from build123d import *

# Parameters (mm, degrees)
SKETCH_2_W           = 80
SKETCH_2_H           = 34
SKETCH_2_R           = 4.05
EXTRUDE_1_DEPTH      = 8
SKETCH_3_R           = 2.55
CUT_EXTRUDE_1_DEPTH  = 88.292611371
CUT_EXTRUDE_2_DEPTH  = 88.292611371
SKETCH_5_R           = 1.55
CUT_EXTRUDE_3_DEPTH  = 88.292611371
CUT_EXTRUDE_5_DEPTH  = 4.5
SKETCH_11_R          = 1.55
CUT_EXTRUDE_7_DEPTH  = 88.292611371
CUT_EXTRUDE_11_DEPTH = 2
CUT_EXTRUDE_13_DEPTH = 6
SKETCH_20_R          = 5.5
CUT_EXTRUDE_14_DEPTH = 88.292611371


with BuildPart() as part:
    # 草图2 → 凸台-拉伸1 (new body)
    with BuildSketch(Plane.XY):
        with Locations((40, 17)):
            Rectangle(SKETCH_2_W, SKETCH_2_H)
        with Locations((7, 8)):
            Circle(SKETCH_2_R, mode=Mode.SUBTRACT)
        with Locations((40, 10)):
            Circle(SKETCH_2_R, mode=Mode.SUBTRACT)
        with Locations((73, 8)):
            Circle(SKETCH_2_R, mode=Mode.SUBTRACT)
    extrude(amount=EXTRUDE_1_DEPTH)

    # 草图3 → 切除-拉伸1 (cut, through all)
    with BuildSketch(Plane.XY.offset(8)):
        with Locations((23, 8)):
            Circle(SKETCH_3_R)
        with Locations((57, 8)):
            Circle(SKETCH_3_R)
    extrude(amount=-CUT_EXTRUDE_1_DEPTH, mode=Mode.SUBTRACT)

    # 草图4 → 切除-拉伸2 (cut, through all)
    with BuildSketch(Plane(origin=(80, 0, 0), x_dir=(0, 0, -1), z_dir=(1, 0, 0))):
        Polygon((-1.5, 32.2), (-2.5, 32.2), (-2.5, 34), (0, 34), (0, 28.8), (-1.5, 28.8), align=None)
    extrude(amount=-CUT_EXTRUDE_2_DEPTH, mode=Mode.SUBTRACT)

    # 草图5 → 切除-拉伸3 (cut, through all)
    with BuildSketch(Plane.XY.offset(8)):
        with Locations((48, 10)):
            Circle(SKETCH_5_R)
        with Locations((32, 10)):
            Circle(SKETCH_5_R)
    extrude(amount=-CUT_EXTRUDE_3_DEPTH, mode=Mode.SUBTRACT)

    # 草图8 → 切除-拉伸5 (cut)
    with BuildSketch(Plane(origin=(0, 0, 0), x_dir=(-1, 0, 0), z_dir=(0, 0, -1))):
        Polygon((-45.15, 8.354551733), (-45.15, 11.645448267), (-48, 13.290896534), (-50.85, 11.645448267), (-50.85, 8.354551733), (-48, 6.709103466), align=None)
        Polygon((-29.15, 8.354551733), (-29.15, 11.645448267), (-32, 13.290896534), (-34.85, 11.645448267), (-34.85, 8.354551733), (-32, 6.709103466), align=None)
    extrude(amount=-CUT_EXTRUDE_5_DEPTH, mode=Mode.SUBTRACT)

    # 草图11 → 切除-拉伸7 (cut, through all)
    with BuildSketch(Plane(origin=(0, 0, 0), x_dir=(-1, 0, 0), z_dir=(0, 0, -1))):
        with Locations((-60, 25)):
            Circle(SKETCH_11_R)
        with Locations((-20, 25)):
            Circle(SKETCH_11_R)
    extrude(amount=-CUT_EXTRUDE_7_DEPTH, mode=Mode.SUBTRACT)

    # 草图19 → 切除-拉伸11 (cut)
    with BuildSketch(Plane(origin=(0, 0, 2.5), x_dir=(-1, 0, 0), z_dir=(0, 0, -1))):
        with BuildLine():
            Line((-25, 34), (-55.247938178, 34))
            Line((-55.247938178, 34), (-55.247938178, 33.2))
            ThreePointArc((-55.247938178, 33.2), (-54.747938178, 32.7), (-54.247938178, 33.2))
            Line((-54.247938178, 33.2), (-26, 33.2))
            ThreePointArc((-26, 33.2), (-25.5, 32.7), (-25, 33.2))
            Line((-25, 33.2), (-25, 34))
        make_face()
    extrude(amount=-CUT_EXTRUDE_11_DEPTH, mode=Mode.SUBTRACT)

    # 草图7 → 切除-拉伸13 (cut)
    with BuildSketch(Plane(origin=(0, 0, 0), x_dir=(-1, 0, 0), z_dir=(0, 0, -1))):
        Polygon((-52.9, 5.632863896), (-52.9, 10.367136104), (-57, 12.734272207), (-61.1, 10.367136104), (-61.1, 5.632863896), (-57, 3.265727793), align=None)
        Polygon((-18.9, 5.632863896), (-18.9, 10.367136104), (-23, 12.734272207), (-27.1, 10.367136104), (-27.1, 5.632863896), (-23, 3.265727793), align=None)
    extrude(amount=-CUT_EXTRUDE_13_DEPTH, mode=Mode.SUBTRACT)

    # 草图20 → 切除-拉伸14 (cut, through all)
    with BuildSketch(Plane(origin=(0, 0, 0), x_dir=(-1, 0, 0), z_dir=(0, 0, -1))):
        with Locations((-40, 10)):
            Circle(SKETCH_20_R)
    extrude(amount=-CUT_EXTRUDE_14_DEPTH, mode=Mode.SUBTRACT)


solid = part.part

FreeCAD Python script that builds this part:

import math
import FreeCAD as App
import Part
import Sketcher
from FreeCAD import Vector
Q = App.Units.Quantity

doc = App.newDocument("Part")
body = doc.addObject("PartDesign::Body", "Body")

sketch1 = body.newObject("Sketcher::SketchObject", "Sketch")
sketch1.AttachmentSupport = (doc.getObject("XY_Plane"), [""])
sketch1.MapMode = "FlatFace"
sketch1.addGeometry(Part.LineSegment(Vector(0, 34, 0), Vector(0, 0, 0)), False)
sketch1.addGeometry(Part.LineSegment(Vector(0, 0, 0), Vector(80, 0, 0)), False)
sketch1.addGeometry(Part.LineSegment(Vector(80, 0, 0), Vector(80, 34, 0)), False)
sketch1.addGeometry(Part.LineSegment(Vector(80, 34, 0), Vector(0, 34, 0)), False)
sketch1.addGeometry(Part.Circle(Vector(7, 8, 0), Vector(0, 0, 1), 4.05), False)
sketch1.addGeometry(Part.Circle(Vector(73, 8, 0), Vector(0, 0, 1), 4.05), False)
sketch1.addGeometry(Part.Circle(Vector(40, 10, 0), Vector(0, 0, 1), 4.05), False)
sketch1.addConstraint(Sketcher.Constraint("Coincident", 0, 2, 1, 1))
sketch1.addConstraint(Sketcher.Constraint("Coincident", 1, 2, 2, 1))
sketch1.addConstraint(Sketcher.Constraint("Coincident", 2, 2, 3, 1))
sketch1.addConstraint(Sketcher.Constraint("Coincident", 3, 2, 0, 1))
sketch1.addConstraint(Sketcher.Constraint("Vertical", 0))
sketch1.addConstraint(Sketcher.Constraint("Horizontal", 1))
sketch1.addConstraint(Sketcher.Constraint("Vertical", 2))
sketch1.addConstraint(Sketcher.Constraint("Horizontal", 3))
sketch1.addConstraint(Sketcher.Constraint("Coincident", 0, 2, -1, 1))
sketch1.addConstraint(Sketcher.Constraint("Equal", 4, 5))
sketch1.addConstraint(Sketcher.Constraint("Equal", 5, 6))
sketch1.addConstraint(Sketcher.Constraint("Horizontal", 4, 3, 5, 3))
sketch1.addConstraint(Sketcher.Constraint("Diameter", 4, 8.1))
sketch1.addConstraint(Sketcher.Constraint("DistanceX", 1, 1, 1, 2, 80.0))
sketch1.addConstraint(Sketcher.Constraint("DistanceY", 0, 2, 0, 1, 34.0))
sketch1.addConstraint(Sketcher.Constraint("DistanceX", -1, 1, 4, 3, 7.0))
sketch1.addConstraint(Sketcher.Constraint("DistanceY", -1, 1, 4, 3, 8.0))
sketch1.addConstraint(Sketcher.Constraint("DistanceX", -1, 1, 5, 3, 73.0))
sketch1.addConstraint(Sketcher.Constraint("DistanceX", -1, 1, 6, 3, 40.0))
sketch1.addConstraint(Sketcher.Constraint("DistanceY", -1, 1, 6, 3, 10.0))
pad1 = body.newObject("PartDesign::Pad", "Pad")
pad1.Profile = sketch1
pad1.Length = 8

sketch2 = body.newObject("Sketcher::SketchObject", "Sketch001")
sketch2.AttachmentSupport = (doc.getObject("XY_Plane"), [""])
sketch2.MapMode = "FlatFace"
sketch2.AttachmentOffset = App.Placement(Vector(0, 0, 8), App.Rotation())
sketch2.addGeometry(Part.Circle(Vector(23, 8, 0), Vector(0, 0, 1), 2.55), False)
sketch2.addGeometry(Part.Circle(Vector(57, 8, 0), Vector(0, 0, 1), 2.55), False)
sketch2.addConstraint(Sketcher.Constraint("Equal", 0, 1))
sketch2.addConstraint(Sketcher.Constraint("Horizontal", 0, 3, 1, 3))
sketch2.addConstraint(Sketcher.Constraint("Diameter", 0, 5.1))
sketch2.addConstraint(Sketcher.Constraint("DistanceX", -1, 1, 0, 3, 23.0))
sketch2.addConstraint(Sketcher.Constraint("DistanceY", -1, 1, 0, 3, 8.0))
sketch2.addConstraint(Sketcher.Constraint("DistanceX", -1, 1, 1, 3, 57.0))
pocket1 = body.newObject("PartDesign::Pocket", "Pocket")
pocket1.Profile = sketch2
pocket1.Type = "ThroughAll"

sketch3 = body.newObject("Sketcher::SketchObject", "Sketch002")
sketch3.AttachmentSupport = (doc.getObject("YZ_Plane"), [""])
sketch3.MapMode = "FlatFace"
sketch3.AttachmentOffset = App.Placement(Vector(0, 0, 80), App.Rotation())
sketch3.addGeometry(Part.LineSegment(Vector(32.2, 2.5, 0), Vector(32.2, 1.5, 0)), False)
sketch3.addGeometry(Part.LineSegment(Vector(32.2, 1.5, 0), Vector(28.8, 1.5, 0)), False)
sketch3.addGeometry(Part.LineSegment(Vector(28.8, 1.5, 0), Vector(28.8, 0, 0)), False)
sketch3.addGeometry(Part.LineSegment(Vector(28.8, 0, 0), Vector(34, 0, 0)), False)
sketch3.addGeometry(Part.LineSegment(Vector(34, 0, 0), Vector(34, 2.5, 0)), False)
sketch3.addGeometry(Part.LineSegment(Vector(34, 2.5, 0), Vector(32.2, 2.5, 0)), False)
sketch3.addConstraint(Sketcher.Constraint("Coincident", 0, 2, 1, 1))
sketch3.addConstraint(Sketcher.Constraint("Coincident", 1, 2, 2, 1))
sketch3.addConstraint(Sketcher.Constraint("Coincident", 2, 2, 3, 1))
sketch3.addConstraint(Sketcher.Constraint("Coincident", 3, 2, 4, 1))
sketch3.addConstraint(Sketcher.Constraint("Coincident", 4, 2, 5, 1))
sketch3.addConstraint(Sketcher.Constraint("Coincident", 5, 2, 0, 1))
sketch3.addConstraint(Sketcher.Constraint("Vertical", 0))
sketch3.addConstraint(Sketcher.Constraint("Horizontal", 1))
sketch3.addConstraint(Sketcher.Constraint("Vertical", 2))
sketch3.addConstraint(Sketcher.Constraint("Horizontal", 3))
sketch3.addConstraint(Sketcher.Constraint("Vertical", 4))
sketch3.addConstraint(Sketcher.Constraint("Horizontal", 5))
sketch3.addConstraint(Sketcher.Constraint("PointOnObject", 2, 2, -1))
sketch3.addConstraint(Sketcher.Constraint("DistanceY", 0, 2, 0, 1, 1.0))
sketch3.addConstraint(Sketcher.Constraint("DistanceX", 1, 2, 1, 1, 3.4))
sketch3.addConstraint(Sketcher.Constraint("DistanceX", 3, 1, 3, 2, 5.2))
sketch3.addConstraint(Sketcher.Constraint("DistanceY", 2, 2, 2, 1, 1.5))
sketch3.addConstraint(Sketcher.Constraint("DistanceX", -1, 1, 3, 2, 34.0))
pocket2 = body.newObject("PartDesign::Pocket", "Pocket001")
pocket2.Profile = sketch3
pocket2.Type = "ThroughAll"

sketch4 = body.newObject("Sketcher::SketchObject", "Sketch003")
sketch4.AttachmentSupport = (doc.getObject("XY_Plane"), [""])
sketch4.MapMode = "FlatFace"
sketch4.AttachmentOffset = App.Placement(Vector(0, 0, 8), App.Rotation())
sketch4.addGeometry(Part.Circle(Vector(48, 10, 0), Vector(0, 0, 1), 1.55), False)
sketch4.addGeometry(Part.Circle(Vector(32, 10, 0), Vector(0, 0, 1), 1.55), False)
sketch4.addConstraint(Sketcher.Constraint("Equal", 0, 1))
sketch4.addConstraint(Sketcher.Constraint("Horizontal", 0, 3, 1, 3))
sketch4.addConstraint(Sketcher.Constraint("Diameter", 0, 3.1))
sketch4.addConstraint(Sketcher.Constraint("DistanceX", -1, 1, 0, 3, 48.0))
sketch4.addConstraint(Sketcher.Constraint("DistanceY", -1, 1, 0, 3, 10.0))
sketch4.addConstraint(Sketcher.Constraint("DistanceX", -1, 1, 1, 3, 32.0))
pocket3 = body.newObject("PartDesign::Pocket", "Pocket002")
pocket3.Profile = sketch4
pocket3.Type = "ThroughAll"

sketch5 = body.newObject("Sketcher::SketchObject", "Sketch004")
sketch5.AttachmentSupport = (doc.getObject("XY_Plane"), [""])
sketch5.MapMode = "FlatFace"
sketch5.addGeometry(Part.LineSegment(Vector(45.15, 8.354552, 0), Vector(45.15, 11.645448, 0)), False)
sketch5.addGeometry(Part.LineSegment(Vector(45.15, 11.645448, 0), Vector(48, 13.290897, 0)), False)
sketch5.addGeometry(Part.LineSegment(Vector(48, 13.290897, 0), Vector(50.85, 11.645448, 0)), False)
sketch5.addGeometry(Part.LineSegment(Vector(50.85, 11.645448, 0), Vector(50.85, 8.354552, 0)), False)
sketch5.addGeometry(Part.LineSegment(Vector(50.85, 8.354552, 0), Vector(48, 6.709103, 0)), False)
sketch5.addGeometry(Part.LineSegment(Vector(48, 6.709103, 0), Vector(45.15, 8.354552, 0)), False)
sketch5.addGeometry(Part.LineSegment(Vector(29.15, 8.354552, 0), Vector(29.15, 11.645448, 0)), False)
sketch5.addGeometry(Part.LineSegment(Vector(29.15, 11.645448, 0), Vector(32, 13.290897, 0)), False)
sketch5.addGeometry(Part.LineSegment(Vector(32, 13.290897, 0), Vector(34.85, 11.645448, 0)), False)
sketch5.addGeometry(Part.LineSegment(Vector(34.85, 11.645448, 0), Vector(34.85, 8.354552, 0)), False)
sketch5.addGeometry(Part.LineSegment(Vector(34.85, 8.354552, 0), Vector(32, 6.709103, 0)), False)
sketch5.addGeometry(Part.LineSegment(Vector(32, 6.709103, 0), Vector(29.15, 8.354552, 0)), False)
sketch5.addConstraint(Sketcher.Constraint("Coincident", 0, 2, 1, 1))
sketch5.addConstraint(Sketcher.Constraint("Coincident", 1, 2, 2, 1))
sketch5.addConstraint(Sketcher.Constraint("Coincident", 2, 2, 3, 1))
sketch5.addConstraint(Sketcher.Constraint("Coincident", 3, 2, 4, 1))
sketch5.addConstraint(Sketcher.Constraint("Coincident", 4, 2, 5, 1))
sketch5.addConstraint(Sketcher.Constraint("Coincident", 5, 2, 0, 1))
sketch5.addConstraint(Sketcher.Constraint("Coincident", 6, 2, 7, 1))
sketch5.addConstraint(Sketcher.Constraint("Coincident", 7, 2, 8, 1))
sketch5.addConstraint(Sketcher.Constraint("Coincident", 8, 2, 9, 1))
sketch5.addConstraint(Sketcher.Constraint("Coincident", 9, 2, 10, 1))
sketch5.addConstraint(Sketcher.Constraint("Coincident", 10, 2, 11, 1))
sketch5.addConstraint(Sketcher.Constraint("Coincident", 11, 2, 6, 1))
sketch5.addConstraint(Sketcher.Constraint("Vertical", 0))
sketch5.addConstraint(Sketcher.Constraint("Vertical", 3))
sketch5.addConstraint(Sketcher.Constraint("Vertical", 6))
sketch5.addConstraint(Sketcher.Constraint("Vertical", 9))
sketch5.addConstraint(Sketcher.Constraint("Parallel", 1, 4))
sketch5.addConstraint(Sketcher.Constraint("Parallel", 2, 5))
sketch5.addConstraint(Sketcher.Constraint("Parallel", 4, 7))
sketch5.addConstraint(Sketcher.Constraint("Parallel", 5, 8))
sketch5.addConstraint(Sketcher.Constraint("Parallel", 7, 10))
sketch5.addConstraint(Sketcher.Constraint("Parallel", 8, 11))
sketch5.addConstraint(Sketcher.Constraint("Horizontal", 0, 2, 2, 2))
sketch5.addConstraint(Sketcher.Constraint("Horizontal", 3, 2, 5, 2))
sketch5.addConstraint(Sketcher.Constraint("Horizontal", 2, 2, 6, 2))
sketch5.addConstraint(Sketcher.Constraint("Horizontal", 1, 2, 7, 2))
sketch5.addConstraint(Sketcher.Constraint("Horizontal", 6, 2, 8, 2))
sketch5.addConstraint(Sketcher.Constraint("Horizontal", 5, 2, 9, 2))
sketch5.addConstraint(Sketcher.Constraint("Horizontal", 4, 2, 10, 2))
sketch5.addConstraint(Sketcher.Constraint("Vertical", 1, 2, 4, 2))
sketch5.addConstraint(Sketcher.Constraint("Angle", 1, Q("30 deg")))
sketch5.addConstraint(Sketcher.Constraint("DistanceX", -1, 1, 1, 2, 48.0))
sketch5.addConstraint(Sketcher.Constraint("DistanceX", -1, 1, 7, 2, 32.0))
sketch5.addConstraint(Sketcher.Constraint("DistanceX", 0, 2, 2, 2, 5.7))
sketch5.addConstraint(Sketcher.Constraint("DistanceY", 0, 1, 0, 2, 3.290897))
sketch5.addConstraint(Sketcher.Constraint("DistanceY", -1, 1, 0, 2, 11.645448))
pocket4 = body.newObject("PartDesign::Pocket", "Pocket003")
pocket4.Profile = sketch5
pocket4.Length = 4.5
pocket4.Reversed = True

sketch6 = body.newObject("Sketcher::SketchObject", "Sketch005")
sketch6.AttachmentSupport = (doc.getObject("XY_Plane"), [""])
sketch6.MapMode = "FlatFace"
sketch6.addGeometry(Part.Circle(Vector(60, 25, 0), Vector(0, 0, 1), 1.55), False)
sketch6.addGeometry(Part.Circle(Vector(20, 25, 0), Vector(0, 0, 1), 1.55), False)
sketch6.addConstraint(Sketcher.Constraint("Equal", 0, 1))
sketch6.addConstraint(Sketcher.Constraint("Horizontal", 0, 3, 1, 3))
sketch6.addConstraint(Sketcher.Constraint("Diameter", 0, 3.1))
sketch6.addConstraint(Sketcher.Constraint("DistanceX", -1, 1, 0, 3, 60.0))
sketch6.addConstraint(Sketcher.Constraint("DistanceY", -1, 1, 0, 3, 25.0))
sketch6.addConstraint(Sketcher.Constraint("DistanceX", -1, 1, 1, 3, 20.0))
pocket5 = body.newObject("PartDesign::Pocket", "Pocket004")
pocket5.Profile = sketch6
pocket5.Type = "ThroughAll"
pocket5.Reversed = True

sketch7 = body.newObject("Sketcher::SketchObject", "Sketch006")
sketch7.AttachmentSupport = (doc.getObject("XY_Plane"), [""])
sketch7.MapMode = "FlatFace"
sketch7.AttachmentOffset = App.Placement(Vector(0, 0, 2.5), App.Rotation())
sketch7.addGeometry(Part.LineSegment(Vector(25, 34, 0), Vector(55.247938, 34, 0)), False)
sketch7.addGeometry(Part.LineSegment(Vector(55.247938, 34, 0), Vector(55.247938, 33.2, 0)), False)
sketch7.addGeometry(Part.ArcOfCircle(Part.Circle(Vector(54.747938, 33.2, 0), Vector(0, 0, 1), 0.5), math.radians(180), math.radians(360)), False)
sketch7.addGeometry(Part.LineSegment(Vector(54.247938, 33.2, 0), Vector(26, 33.2, 0)), False)
sketch7.addGeometry(Part.ArcOfCircle(Part.Circle(Vector(25.5, 33.2, 0), Vector(0, 0, 1), 0.5), math.radians(180), math.radians(360)), False)
sketch7.addGeometry(Part.LineSegment(Vector(25, 33.2, 0), Vector(25, 34, 0)), False)
sketch7.addConstraint(Sketcher.Constraint("Coincident", 0, 2, 1, 1))
sketch7.addConstraint(Sketcher.Constraint("Tangent", 1, 2, 2, 2))
sketch7.addConstraint(Sketcher.Constraint("Coincident", 2, 1, 3, 1))
sketch7.addConstraint(Sketcher.Constraint("Coincident", 3, 2, 4, 2))
sketch7.addConstraint(Sketcher.Constraint("Tangent", 4, 1, 5, 1))
sketch7.addConstraint(Sketcher.Constraint("Coincident", 5, 2, 0, 1))
sketch7.addConstraint(Sketcher.Constraint("Horizontal", 0))
sketch7.addConstraint(Sketcher.Constraint("Vertical", 1))
sketch7.addConstraint(Sketcher.Constraint("Horizontal", 3))
sketch7.addConstraint(Sketcher.Constraint("Vertical", 5))
sketch7.addConstraint(Sketcher.Constraint("Equal", 2, 4))
sketch7.addConstraint(Sketcher.Constraint("Horizontal", 2, 3, 4, 3))
sketch7.addConstraint(Sketcher.Constraint("Horizontal", 1, 2, 2, 1))
sketch7.addConstraint(Sketcher.Constraint("Radius", 2, 0.5))
sketch7.addConstraint(Sketcher.Constraint("DistanceY", 1, 2, 1, 1, 0.8))
sketch7.addConstraint(Sketcher.Constraint("DistanceY", -1, 1, 0, 2, 34.0))
sketch7.addConstraint(Sketcher.Constraint("DistanceX", -1, 1, 3, 2, 26.0))
sketch7.addConstraint(Sketcher.Constraint("DistanceX", 0, 1, 0, 2, 30.247938))
pocket6 = body.newObject("PartDesign::Pocket", "Pocket005")
pocket6.Profile = sketch7
pocket6.Length = 2
pocket6.Reversed = True

sketch8 = body.newObject("Sketcher::SketchObject", "Sketch007")
sketch8.AttachmentSupport = (doc.getObject("XY_Plane"), [""])
sketch8.MapMode = "FlatFace"
sketch8.addGeometry(Part.LineSegment(Vector(52.9, 5.632864, 0), Vector(52.9, 10.367136, 0)), False)
sketch8.addGeometry(Part.LineSegment(Vector(52.9, 10.367136, 0), Vector(57, 12.734272, 0)), False)
sketch8.addGeometry(Part.LineSegment(Vector(57, 12.734272, 0), Vector(61.1, 10.367136, 0)), False)
sketch8.addGeometry(Part.LineSegment(Vector(61.1, 10.367136, 0), Vector(61.1, 5.632864, 0)), False)
sketch8.addGeometry(Part.LineSegment(Vector(61.1, 5.632864, 0), Vector(57, 3.265728, 0)), False)
sketch8.addGeometry(Part.LineSegment(Vector(57, 3.265728, 0), Vector(52.9, 5.632864, 0)), False)
sketch8.addGeometry(Part.LineSegment(Vector(18.9, 5.632864, 0), Vector(18.9, 10.367136, 0)), False)
sketch8.addGeometry(Part.LineSegment(Vector(18.9, 10.367136, 0), Vector(23, 12.734272, 0)), False)
sketch8.addGeometry(Part.LineSegment(Vector(23, 12.734272, 0), Vector(27.1, 10.367136, 0)), False)
sketch8.addGeometry(Part.LineSegment(Vector(27.1, 10.367136, 0), Vector(27.1, 5.632864, 0)), False)
sketch8.addGeometry(Part.LineSegment(Vector(27.1, 5.632864, 0), Vector(23, 3.265728, 0)), False)
sketch8.addGeometry(Part.LineSegment(Vector(23, 3.265728, 0), Vector(18.9, 5.632864, 0)), False)
sketch8.addConstraint(Sketcher.Constraint("Coincident", 0, 2, 1, 1))
sketch8.addConstraint(Sketcher.Constraint("Coincident", 1, 2, 2, 1))
sketch8.addConstraint(Sketcher.Constraint("Coincident", 2, 2, 3, 1))
sketch8.addConstraint(Sketcher.Constraint("Coincident", 3, 2, 4, 1))
sketch8.addConstraint(Sketcher.Constraint("Coincident", 4, 2, 5, 1))
sketch8.addConstraint(Sketcher.Constraint("Coincident", 5, 2, 0, 1))
sketch8.addConstraint(Sketcher.Constraint("Coincident", 6, 2, 7, 1))
sketch8.addConstraint(Sketcher.Constraint("Coincident", 7, 2, 8, 1))
sketch8.addConstraint(Sketcher.Constraint("Coincident", 8, 2, 9, 1))
sketch8.addConstraint(Sketcher.Constraint("Coincident", 9, 2, 10, 1))
sketch8.addConstraint(Sketcher.Constraint("Coincident", 10, 2, 11, 1))
sketch8.addConstraint(Sketcher.Constraint("Coincident", 11, 2, 6, 1))
sketch8.addConstraint(Sketcher.Constraint("Vertical", 0))
sketch8.addConstraint(Sketcher.Constraint("Vertical", 3))
sketch8.addConstraint(Sketcher.Constraint("Vertical", 6))
sketch8.addConstraint(Sketcher.Constraint("Vertical", 9))
sketch8.addConstraint(Sketcher.Constraint("Parallel", 1, 4))
sketch8.addConstraint(Sketcher.Constraint("Parallel", 2, 5))
sketch8.addConstraint(Sketcher.Constraint("Parallel", 4, 7))
sketch8.addConstraint(Sketcher.Constraint("Parallel", 5, 8))
sketch8.addConstraint(Sketcher.Constraint("Parallel", 7, 10))
sketch8.addConstraint(Sketcher.Constraint("Parallel", 8, 11))
sketch8.addConstraint(Sketcher.Constraint("Horizontal", 0, 2, 2, 2))
sketch8.addConstraint(Sketcher.Constraint("Horizontal", 3, 2, 5, 2))
sketch8.addConstraint(Sketcher.Constraint("Horizontal", 2, 2, 6, 2))
sketch8.addConstraint(Sketcher.Constraint("Horizontal", 1, 2, 7, 2))
sketch8.addConstraint(Sketcher.Constraint("Horizontal", 6, 2, 8, 2))
sketch8.addConstraint(Sketcher.Constraint("Horizontal", 5, 2, 9, 2))
sketch8.addConstraint(Sketcher.Constraint("Horizontal", 4, 2, 10, 2))
sketch8.addConstraint(Sketcher.Constraint("Vertical", 1, 2, 4, 2))
sketch8.addConstraint(Sketcher.Constraint("Angle", 1, Q("30 deg")))
sketch8.addConstraint(Sketcher.Constraint("DistanceX", -1, 1, 1, 2, 57.0))
sketch8.addConstraint(Sketcher.Constraint("DistanceX", -1, 1, 7, 2, 23.0))
sketch8.addConstraint(Sketcher.Constraint("DistanceX", -1, 1, 0, 2, 52.9))
sketch8.addConstraint(Sketcher.Constraint("DistanceY", 0, 1, 0, 2, 4.734272))
sketch8.addConstraint(Sketcher.Constraint("DistanceY", -1, 1, 0, 2, 10.367136))
pocket7 = body.newObject("PartDesign::Pocket", "Pocket006")
pocket7.Profile = sketch8
pocket7.Length = 6
pocket7.Reversed = True

sketch9 = body.newObject("Sketcher::SketchObject", "Sketch008")
sketch9.AttachmentSupport = (doc.getObject("XY_Plane"), [""])
sketch9.MapMode = "FlatFace"
sketch9.addGeometry(Part.Circle(Vector(40, 10, 0), Vector(0, 0, 1), 5.5), False)
sketch9.addConstraint(Sketcher.Constraint("Diameter", 0, 11.0))
sketch9.addConstraint(Sketcher.Constraint("DistanceX", -1, 1, 0, 3, 40.0))
sketch9.addConstraint(Sketcher.Constraint("DistanceY", -1, 1, 0, 3, 10.0))
pocket8 = body.newObject("PartDesign::Pocket", "Pocket007")
pocket8.Profile = sketch9
pocket8.Type = "ThroughAll"
pocket8.Reversed = True

doc.recompute()
